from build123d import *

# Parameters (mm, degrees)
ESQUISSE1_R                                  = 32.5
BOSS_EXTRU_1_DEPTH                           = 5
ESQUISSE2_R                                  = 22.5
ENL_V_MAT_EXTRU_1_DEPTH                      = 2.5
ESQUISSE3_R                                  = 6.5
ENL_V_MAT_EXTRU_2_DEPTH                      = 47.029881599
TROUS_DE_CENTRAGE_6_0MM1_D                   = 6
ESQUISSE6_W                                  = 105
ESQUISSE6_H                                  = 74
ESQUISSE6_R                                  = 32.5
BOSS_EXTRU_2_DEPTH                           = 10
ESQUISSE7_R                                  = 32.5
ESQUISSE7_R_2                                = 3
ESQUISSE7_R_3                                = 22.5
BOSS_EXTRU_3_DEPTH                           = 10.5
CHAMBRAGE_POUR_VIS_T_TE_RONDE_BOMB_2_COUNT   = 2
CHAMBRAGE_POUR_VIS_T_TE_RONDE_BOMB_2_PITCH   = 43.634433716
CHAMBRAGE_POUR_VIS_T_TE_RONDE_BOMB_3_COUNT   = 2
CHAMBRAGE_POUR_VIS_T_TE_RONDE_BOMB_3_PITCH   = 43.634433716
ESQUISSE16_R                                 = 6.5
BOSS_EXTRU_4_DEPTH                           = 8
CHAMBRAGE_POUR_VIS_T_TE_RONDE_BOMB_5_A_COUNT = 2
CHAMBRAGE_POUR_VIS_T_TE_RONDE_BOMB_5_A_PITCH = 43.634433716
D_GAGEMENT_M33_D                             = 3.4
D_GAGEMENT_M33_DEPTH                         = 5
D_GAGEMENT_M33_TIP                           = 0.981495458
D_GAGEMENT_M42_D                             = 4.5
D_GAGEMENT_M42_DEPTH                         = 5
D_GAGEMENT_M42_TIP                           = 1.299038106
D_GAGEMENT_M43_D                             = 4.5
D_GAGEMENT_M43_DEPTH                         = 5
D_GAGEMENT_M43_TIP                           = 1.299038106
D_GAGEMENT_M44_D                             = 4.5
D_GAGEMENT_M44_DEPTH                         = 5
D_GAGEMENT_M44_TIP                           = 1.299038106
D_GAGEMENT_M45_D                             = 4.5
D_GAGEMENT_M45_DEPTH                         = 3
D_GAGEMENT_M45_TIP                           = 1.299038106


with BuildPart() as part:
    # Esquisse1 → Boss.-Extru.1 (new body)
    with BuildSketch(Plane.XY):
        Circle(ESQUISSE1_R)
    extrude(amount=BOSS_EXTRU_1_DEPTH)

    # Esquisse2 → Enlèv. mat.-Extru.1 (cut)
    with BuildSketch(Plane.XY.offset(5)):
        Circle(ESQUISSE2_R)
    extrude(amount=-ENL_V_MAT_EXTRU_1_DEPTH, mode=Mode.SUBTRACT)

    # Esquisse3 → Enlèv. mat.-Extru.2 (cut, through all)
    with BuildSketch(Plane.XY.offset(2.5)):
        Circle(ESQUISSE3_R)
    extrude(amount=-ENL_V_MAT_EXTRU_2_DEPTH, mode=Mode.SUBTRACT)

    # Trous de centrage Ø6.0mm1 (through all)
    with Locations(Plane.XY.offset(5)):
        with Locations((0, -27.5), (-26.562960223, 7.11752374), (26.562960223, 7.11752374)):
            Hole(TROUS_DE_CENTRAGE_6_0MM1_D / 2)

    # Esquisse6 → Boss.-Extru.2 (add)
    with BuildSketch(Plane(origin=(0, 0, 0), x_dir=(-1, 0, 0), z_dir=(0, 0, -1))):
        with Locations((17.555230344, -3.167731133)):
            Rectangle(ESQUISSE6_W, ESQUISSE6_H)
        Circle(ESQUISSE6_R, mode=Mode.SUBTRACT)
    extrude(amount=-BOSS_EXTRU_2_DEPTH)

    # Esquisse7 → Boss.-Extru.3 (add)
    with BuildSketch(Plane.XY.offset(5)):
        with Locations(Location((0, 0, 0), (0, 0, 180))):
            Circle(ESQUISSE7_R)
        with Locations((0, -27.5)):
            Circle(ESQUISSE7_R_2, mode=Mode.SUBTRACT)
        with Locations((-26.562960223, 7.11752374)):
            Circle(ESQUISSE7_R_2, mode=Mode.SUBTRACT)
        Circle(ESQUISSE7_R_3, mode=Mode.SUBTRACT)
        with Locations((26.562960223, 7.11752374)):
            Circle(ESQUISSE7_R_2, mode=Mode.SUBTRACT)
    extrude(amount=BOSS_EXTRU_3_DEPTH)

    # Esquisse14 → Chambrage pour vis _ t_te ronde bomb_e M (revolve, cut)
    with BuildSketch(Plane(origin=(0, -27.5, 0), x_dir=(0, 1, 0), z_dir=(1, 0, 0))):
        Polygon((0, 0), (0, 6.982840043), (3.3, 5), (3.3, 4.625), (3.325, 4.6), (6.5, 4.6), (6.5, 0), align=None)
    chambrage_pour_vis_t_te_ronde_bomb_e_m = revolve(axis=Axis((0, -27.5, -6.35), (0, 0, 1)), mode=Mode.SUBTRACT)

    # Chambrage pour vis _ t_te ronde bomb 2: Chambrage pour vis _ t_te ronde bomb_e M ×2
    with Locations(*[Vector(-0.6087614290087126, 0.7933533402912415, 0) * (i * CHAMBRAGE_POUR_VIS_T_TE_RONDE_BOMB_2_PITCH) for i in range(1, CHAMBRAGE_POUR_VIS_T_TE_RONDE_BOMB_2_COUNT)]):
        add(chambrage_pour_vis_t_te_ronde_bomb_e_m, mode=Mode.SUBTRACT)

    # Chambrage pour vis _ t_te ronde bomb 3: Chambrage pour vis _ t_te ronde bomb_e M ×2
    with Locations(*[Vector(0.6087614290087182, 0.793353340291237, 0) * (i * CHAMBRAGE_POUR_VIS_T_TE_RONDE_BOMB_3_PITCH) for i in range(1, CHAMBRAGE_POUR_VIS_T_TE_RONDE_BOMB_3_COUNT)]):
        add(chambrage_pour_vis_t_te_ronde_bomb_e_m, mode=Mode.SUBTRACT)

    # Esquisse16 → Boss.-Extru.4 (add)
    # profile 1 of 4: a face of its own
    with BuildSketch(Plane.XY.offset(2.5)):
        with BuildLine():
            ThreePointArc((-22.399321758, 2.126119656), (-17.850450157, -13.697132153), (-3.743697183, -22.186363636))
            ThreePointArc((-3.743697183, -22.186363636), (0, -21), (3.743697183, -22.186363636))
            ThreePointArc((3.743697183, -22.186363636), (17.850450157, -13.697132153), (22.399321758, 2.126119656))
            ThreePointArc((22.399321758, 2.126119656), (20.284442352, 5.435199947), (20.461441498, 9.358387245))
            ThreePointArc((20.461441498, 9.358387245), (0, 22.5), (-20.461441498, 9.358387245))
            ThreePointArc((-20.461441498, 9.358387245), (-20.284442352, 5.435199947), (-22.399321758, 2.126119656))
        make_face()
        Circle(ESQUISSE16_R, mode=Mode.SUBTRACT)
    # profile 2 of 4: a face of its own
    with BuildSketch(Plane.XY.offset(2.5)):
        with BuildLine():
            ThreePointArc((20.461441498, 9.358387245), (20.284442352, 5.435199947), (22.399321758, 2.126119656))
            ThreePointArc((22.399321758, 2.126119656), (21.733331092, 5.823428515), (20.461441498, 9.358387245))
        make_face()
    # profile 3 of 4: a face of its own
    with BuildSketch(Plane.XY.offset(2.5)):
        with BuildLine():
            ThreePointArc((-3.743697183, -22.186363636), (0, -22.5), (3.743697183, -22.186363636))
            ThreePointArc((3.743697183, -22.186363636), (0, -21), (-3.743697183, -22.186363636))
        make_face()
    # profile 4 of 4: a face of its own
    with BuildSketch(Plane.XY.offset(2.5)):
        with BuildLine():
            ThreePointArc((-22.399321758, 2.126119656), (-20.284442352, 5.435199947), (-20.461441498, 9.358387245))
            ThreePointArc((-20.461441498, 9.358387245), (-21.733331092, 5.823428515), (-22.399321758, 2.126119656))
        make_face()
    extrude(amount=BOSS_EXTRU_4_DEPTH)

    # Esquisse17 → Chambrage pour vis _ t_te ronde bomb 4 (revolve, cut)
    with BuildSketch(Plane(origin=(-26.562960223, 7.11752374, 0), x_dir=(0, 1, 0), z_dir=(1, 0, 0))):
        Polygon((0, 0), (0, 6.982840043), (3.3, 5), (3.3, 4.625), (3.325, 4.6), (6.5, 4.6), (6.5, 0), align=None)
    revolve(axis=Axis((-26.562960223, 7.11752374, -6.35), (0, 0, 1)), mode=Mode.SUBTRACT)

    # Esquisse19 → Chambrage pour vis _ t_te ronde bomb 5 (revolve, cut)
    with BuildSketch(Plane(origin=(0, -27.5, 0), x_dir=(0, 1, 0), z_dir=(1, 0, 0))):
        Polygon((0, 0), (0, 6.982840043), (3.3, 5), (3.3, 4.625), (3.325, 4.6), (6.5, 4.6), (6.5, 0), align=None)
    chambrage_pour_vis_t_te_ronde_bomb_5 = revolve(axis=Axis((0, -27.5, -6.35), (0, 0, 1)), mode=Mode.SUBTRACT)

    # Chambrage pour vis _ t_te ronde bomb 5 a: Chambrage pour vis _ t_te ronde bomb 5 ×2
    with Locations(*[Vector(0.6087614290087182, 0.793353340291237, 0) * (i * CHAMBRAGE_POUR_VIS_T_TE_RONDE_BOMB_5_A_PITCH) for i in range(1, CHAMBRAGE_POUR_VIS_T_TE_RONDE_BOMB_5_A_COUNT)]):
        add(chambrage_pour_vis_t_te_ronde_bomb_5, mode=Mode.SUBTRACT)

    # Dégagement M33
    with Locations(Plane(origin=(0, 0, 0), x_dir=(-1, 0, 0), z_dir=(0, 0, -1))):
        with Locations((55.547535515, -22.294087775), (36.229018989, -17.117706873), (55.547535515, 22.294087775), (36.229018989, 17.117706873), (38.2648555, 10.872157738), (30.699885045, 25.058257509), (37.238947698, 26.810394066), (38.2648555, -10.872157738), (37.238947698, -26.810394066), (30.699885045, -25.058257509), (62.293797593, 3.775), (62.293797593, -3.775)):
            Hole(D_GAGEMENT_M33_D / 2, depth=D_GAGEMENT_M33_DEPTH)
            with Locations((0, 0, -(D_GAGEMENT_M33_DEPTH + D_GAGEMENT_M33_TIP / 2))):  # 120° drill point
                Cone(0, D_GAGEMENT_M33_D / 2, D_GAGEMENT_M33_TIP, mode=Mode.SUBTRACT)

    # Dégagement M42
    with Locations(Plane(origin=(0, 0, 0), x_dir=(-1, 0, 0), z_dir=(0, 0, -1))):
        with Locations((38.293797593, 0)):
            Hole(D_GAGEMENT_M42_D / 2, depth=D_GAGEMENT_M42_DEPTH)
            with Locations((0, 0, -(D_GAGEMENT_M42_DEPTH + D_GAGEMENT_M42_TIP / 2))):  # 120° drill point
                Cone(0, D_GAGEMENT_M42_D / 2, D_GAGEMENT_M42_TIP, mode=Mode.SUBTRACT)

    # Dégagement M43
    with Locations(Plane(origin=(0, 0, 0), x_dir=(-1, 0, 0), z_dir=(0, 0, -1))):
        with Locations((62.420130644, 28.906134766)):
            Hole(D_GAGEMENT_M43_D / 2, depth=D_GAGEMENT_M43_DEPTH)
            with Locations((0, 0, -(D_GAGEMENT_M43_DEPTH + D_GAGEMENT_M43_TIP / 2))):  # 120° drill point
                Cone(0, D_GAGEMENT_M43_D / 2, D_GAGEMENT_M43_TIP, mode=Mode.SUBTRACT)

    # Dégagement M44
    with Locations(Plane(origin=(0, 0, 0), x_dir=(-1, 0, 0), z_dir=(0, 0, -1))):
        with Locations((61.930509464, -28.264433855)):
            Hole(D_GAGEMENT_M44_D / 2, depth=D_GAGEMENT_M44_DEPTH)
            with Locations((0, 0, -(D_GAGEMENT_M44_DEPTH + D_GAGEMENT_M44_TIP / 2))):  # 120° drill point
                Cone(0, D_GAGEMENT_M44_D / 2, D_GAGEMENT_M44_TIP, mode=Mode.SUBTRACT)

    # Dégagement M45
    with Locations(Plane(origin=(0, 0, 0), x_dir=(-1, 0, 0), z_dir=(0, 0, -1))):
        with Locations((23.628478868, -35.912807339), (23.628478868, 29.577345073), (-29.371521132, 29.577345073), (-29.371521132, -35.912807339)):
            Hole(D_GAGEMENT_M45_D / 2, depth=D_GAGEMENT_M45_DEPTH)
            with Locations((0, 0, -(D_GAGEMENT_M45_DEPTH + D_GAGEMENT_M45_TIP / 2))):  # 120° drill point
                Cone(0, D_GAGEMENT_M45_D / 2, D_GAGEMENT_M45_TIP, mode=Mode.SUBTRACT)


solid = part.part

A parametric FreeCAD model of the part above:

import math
import FreeCAD as App
import Part
import Sketcher
Q = App.Units.Quantity


def add_polygon(sketch, points):
    """Adds a closed chain of lines whose ends are joined by coincident constraints."""
    first, n = sketch.GeometryCount, len(points)
    for a, b in zip(points, points[1:] + points[:1]):
        sketch.addGeometry(Part.LineSegment(App.Vector(*a, 0), App.Vector(*b, 0)), False)
    for i in range(n):
        sketch.addConstraint(Sketcher.Constraint("Coincident", first + i, 2, first + (i + 1) % n, 1))

doc = App.newDocument("Part")
body = doc.addObject("PartDesign::Body", "Body")

sketch1 = body.newObject("Sketcher::SketchObject", "Sketch")
sketch1.AttachmentSupport = (doc.getObject("XY_Plane"), [""])
sketch1.MapMode = "FlatFace"
sketch1.addGeometry(Part.Circle(App.Vector(0, 0, 0), App.Vector(0, 0, 1), 32), False)
sketch1.addConstraint([
    Sketcher.Constraint("Coincident", 0, 3, -1, 1),
    Sketcher.Constraint("Diameter", 0, 65.0),
])
pad1 = body.newObject("PartDesign::Pad", "Pad")
pad1.Profile = sketch1
pad1.Length = 5

sketch2 = body.newObject("Sketcher::SketchObject", "Sketch001")
sketch2.AttachmentSupport = (doc.getObject("XY_Plane"), [""])
sketch2.MapMode = "FlatFace"
sketch2.AttachmentOffset = App.Placement(App.Vector(0, 0, 5), App.Rotation())
sketch2.addGeometry(Part.Circle(App.Vector(0, 0, 0), App.Vector(0, 0, 1), 22), False)
sketch2.addConstraint([
    Sketcher.Constraint("Coincident", 0, 3, -1, 1),
    Sketcher.Constraint("Diameter", 0, 45.0),
])
pocket1 = body.newObject("PartDesign::Pocket", "Pocket")
pocket1.Profile = sketch2
pocket1.Length = 2.5

sketch3 = body.newObject("Sketcher::SketchObject", "Sketch002")
sketch3.AttachmentSupport = (doc.getObject("XY_Plane"), [""])
sketch3.MapMode = "FlatFace"
sketch3.AttachmentOffset = App.Placement(App.Vector(0, 0, 2.5), App.Rotation())
sketch3.addGeometry(Part.Circle(App.Vector(0, 0, 0), App.Vector(0, 0, 1), 6), False)
sketch3.addConstraint([
    Sketcher.Constraint("Coincident", 0, 3, -1, 1),
    Sketcher.Constraint("Diameter", 0, 13.0),
])
pocket2 = body.newObject("PartDesign::Pocket", "Pocket001")
pocket2.Profile = sketch3
pocket2.Type = "ThroughAll"

sketch4 = body.newObject("Sketcher::SketchObject", "Sketch003")
sketch4.AttachmentSupport = (doc.getObject("XY_Plane"), [""])
sketch4.MapMode = "FlatFace"
sketch4.AttachmentOffset = App.Placement(App.Vector(0, 0, 5), App.Rotation())
sketch4.addGeometry([
    Part.Circle(App.Vector(0, -27.5, 0), App.Vector(0, 0, 1), 3),
    Part.Circle(App.Vector(-26.6, 7.1, 0), App.Vector(0, 0, 1), 3),
    Part.Circle(App.Vector(26.6, 7.1, 0), App.Vector(0, 0, 1), 3),
], False)
sketch4.addConstraint([
    Sketcher.Constraint("Equal", 0, 1),
    Sketcher.Constraint("Equal", 1, 2),
    Sketcher.Constraint("Symmetric", 1, 3, 2, 3, -2),
    Sketcher.Constraint("PointOnObject", 0, 3, -2),
    Sketcher.Constraint("Diameter", 0, 6.0),
    Sketcher.Constraint("DistanceY", 0, 3, -1, 1, 27.5),
    Sketcher.Constraint("DistanceX", 1, 3, -1, 1, 26.56296),
    Sketcher.Constraint("DistanceY", -1, 1, 1, 3, 7.117524),
])
doc.recompute()
hole = body.newObject("PartDesign::Hole", "Hole")
hole.Profile = sketch4
hole.ThreadType = "None"
hole.Diameter = 6
hole.DepthType = "ThroughAll"

sketch5 = body.newObject("Sketcher::SketchObject", "Sketch004")
sketch5.AttachmentSupport = (doc.getObject("XY_Plane"), [""])
sketch5.MapMode = "FlatFace"
add_polygon(sketch5, [(35, 34), (35, -40), (-70, -40), (-70, 34)])
sketch5.addGeometry(Part.Circle(App.Vector(0, 0, 0), App.Vector(0, 0, 1), 32), False)
sketch5.addConstraint([
    Sketcher.Constraint("Vertical", 0),
    Sketcher.Constraint("Horizontal", 1),
    Sketcher.Constraint("Vertical", 2),
    Sketcher.Constraint("Horizontal", 3),
    Sketcher.Constraint("Coincident", 4, 3, -1, 1),
    Sketcher.Constraint("Diameter", 4, 65.0),
    Sketcher.Constraint("DistanceX", 1, 2, 1, 1, 105.0),
    Sketcher.Constraint("DistanceY", 0, 2, 0, 1, 74.0),
    Sketcher.Constraint("DistanceX", -1, 1, 0, 2, 34.94477),
    Sketcher.Constraint("DistanceY", 0, 2, -1, 1, 40.167731),
])
pad2 = body.newObject("PartDesign::Pad", "Pad001")
pad2.Profile = sketch5
pad2.Length = 10

sketch6 = body.newObject("Sketcher::SketchObject", "Sketch005")
sketch6.AttachmentSupport = (doc.getObject("XY_Plane"), [""])
sketch6.MapMode = "FlatFace"
sketch6.AttachmentOffset = App.Placement(App.Vector(0, 0, 5), App.Rotation())
sketch6.addGeometry([
    Part.Circle(App.Vector(0, 0, 0), App.Vector(0, 0, 1), 32.5),
    Part.Circle(App.Vector(26.6, 7.1, 0), App.Vector(0, 0, 1), 3),
    Part.Circle(App.Vector(0, 0, 0), App.Vector(0, 0, 1), 22.5),
    Part.Circle(App.Vector(-26.6, 7.1, 0), App.Vector(0, 0, 1), 3),
    Part.Circle(App.Vector(0, -27.5, 0), App.Vector(0, 0, 1), 3),
], False)
sketch6.addConstraint([
    Sketcher.Constraint("Coincident", 0, 3, -1, 1),
    Sketcher.Constraint("Coincident", 2, 3, -1, 1),
    Sketcher.Constraint("Equal", 1, 3),
    Sketcher.Constraint("Equal", 3, 4),
    Sketcher.Constraint("Symmetric", 1, 3, 3, 3, -2),
    Sketcher.Constraint("PointOnObject", 4, 3, -2),
    Sketcher.Constraint("Diameter", 0, 65.0),
    Sketcher.Constraint("Diameter", 1, 6.0),
    Sketcher.Constraint("Diameter", 2, 45.0),
    Sketcher.Constraint("DistanceY", 4, 3, -1, 1, 27.5),
    Sketcher.Constraint("DistanceX", -1, 1, 1, 3, 26.56296),
    Sketcher.Constraint("DistanceY", -1, 1, 1, 3, 7.117524),
])
pad3 = body.newObject("PartDesign::Pad", "Pad002")
pad3.Profile = sketch6
pad3.Length = 10.5

sketch7 = body.newObject("Sketcher::SketchObject", "Sketch006")
sketch7.AttachmentSupport = (doc.getObject("YZ_Plane"), [""])
sketch7.MapMode = "FlatFace"
add_polygon(sketch7, [(-27.5, 6.983), (-27.5, 0), (-21, 0), (-21, 4.6), (-24.175, 4.6), (-24.2, 4.625), (-24.2, 5)])
sketch7.addGeometry(Part.LineSegment(App.Vector(-27.5, 0, 0), App.Vector(-27.5, 6.983, 0)), True)
sketch7.addConstraint([
    Sketcher.Constraint("Vertical", 0),
    Sketcher.Constraint("Horizontal", 1),
    Sketcher.Constraint("Vertical", 2),
    Sketcher.Constraint("Horizontal", 3),
    Sketcher.Constraint("Vertical", 5),
    Sketcher.Constraint("Vertical", 7),
    Sketcher.Constraint("Coincident", 7, 1, 0, 2),
    Sketcher.Constraint("PointOnObject", 0, 2, -1),
    Sketcher.Constraint("Equal", 0, 7),
    Sketcher.Constraint("Angle", 4, Q("135 deg")),
    Sketcher.Constraint("Angle", 6, Q("149 deg")),
    Sketcher.Constraint("DistanceX", 1, 1, 1, 2, 6.5),
    Sketcher.Constraint("DistanceY", 2, 1, 2, 2, 4.6),
    Sketcher.Constraint("DistanceX", 1, 2, -1, 1, 21.0),
    Sketcher.Constraint("DistanceY", -1, 1, 5, 2, 5.0),
    Sketcher.Constraint("DistanceX", 4, 2, -1, 1, 24.2),
    Sketcher.Constraint("DistanceX", 3, 2, 3, 1, 3.175),
])
groove = body.newObject("PartDesign::Groove", "Groove")
groove.Profile = sketch7
groove.ReferenceAxis = (sketch7, ["Axis0"])
groove.Angle = 360
doc.recompute()

datumline = body.newObject("PartDesign::Line", "DatumLine")
datumline.Placement = App.Placement(App.Vector(0, 0, 0), App.Rotation(App.Vector(0, 0, 1), App.Vector(-0.608761429, 0.79335334, 0)))
linearpattern = body.newObject("PartDesign::LinearPattern", "LinearPattern")
linearpattern.Originals = [groove]
linearpattern.Direction = (datumline, [""])
linearpattern.Mode = "offset"
linearpattern.Offset = 43.634434
linearpattern.Occurrences = 2
body.Tip = linearpattern
doc.recompute()

datumline2 = body.newObject("PartDesign::Line", "DatumLine001")
datumline2.Placement = App.Placement(App.Vector(0, 0, 0), App.Rotation(App.Vector(0, 0, 1), App.Vector(0.608761429, 0.79335334, 0)))
linearpattern2 = body.newObject("PartDesign::LinearPattern", "LinearPattern001")
linearpattern2.Originals = [groove]
linearpattern2.Direction = (datumline2, [""])
linearpattern2.Mode = "offset"
linearpattern2.Offset = 43.634434
linearpattern2.Occurrences = 2
body.Tip = linearpattern2

sketch8 = body.newObject("Sketcher::SketchObject", "Sketch007")
sketch8.AttachmentSupport = (doc.getObject("XY_Plane"), [""])
sketch8.MapMode = "FlatFace"
sketch8.AttachmentOffset = App.Placement(App.Vector(0, 0, 2.5), App.Rotation())
sketch8.addGeometry([
    Part.ArcOfCircle(Part.Circle(App.Vector(0, 0, 0), App.Vector(0, 0, 1), 22), math.radians(175), math.radians(260)),
    Part.ArcOfCircle(Part.Circle(App.Vector(0, 0, 0), App.Vector(0, 0, 1), 22), math.radians(-99.58), math.radians(-80.42)),
    Part.ArcOfCircle(Part.Circle(App.Vector(0, 0, 0), App.Vector(0, 0, 1), 22), math.radians(-80), math.radians(5)),
    Part.ArcOfCircle(Part.Circle(App.Vector(0, 0, 0), App.Vector(0, 0, 1), 22), math.radians(5.42), math.radians(24.58)),
    Part.ArcOfCircle(Part.Circle(App.Vector(0, 0, 0), App.Vector(0, 0, 1), 22), math.radians(25), math.radians(155)),
    Part.ArcOfCircle(Part.Circle(App.Vector(0, 0, 0), App.Vector(0, 0, 1), 22), math.radians(155.42), math.radians(174.58)),
    Part.Circle(App.Vector(0, 0, 0), App.Vector(0, 0, 1), 6),
], False)
sketch8.addConstraint([
    Sketcher.Constraint("Tangent", 0, 2, 1, 1),
    Sketcher.Constraint("Tangent", 1, 2, 2, 1),
    Sketcher.Constraint("Tangent", 2, 2, 3, 1),
    Sketcher.Constraint("Tangent", 3, 2, 4, 1),
    Sketcher.Constraint("Tangent", 4, 2, 5, 1),
    Sketcher.Constraint("Tangent", 5, 2, 0, 1),
    Sketcher.Constraint("Coincident", 0, 3, -1, 1),
    Sketcher.Constraint("Coincident", 2, 3, -1, 1),
    Sketcher.Constraint("Coincident", 6, 3, -1, 1),
    Sketcher.Constraint("Equal", 2, 3),
    Sketcher.Constraint("Horizontal", 0, 2, 1, 2),
    Sketcher.Constraint("Horizontal", 3, 2, 4, 2),
    Sketcher.Constraint("Horizontal", 2, 2, 5, 2),
    Sketcher.Constraint("Diameter", 6, 13.0),
    Sketcher.Constraint("Radius", 0, 22.5),
    Sketcher.Constraint("DistanceX", -1, 1, 2, 2, 22.399322),
    Sketcher.Constraint("DistanceX", -1, 1, 3, 2, 20.461441),
    Sketcher.Constraint("DistanceX", 0, 2, -1, 1, 3.743697),
])
pad4 = body.newObject("PartDesign::Pad", "Pad003")
pad4.Profile = sketch8
pad4.Length = 8

sketch9 = body.newObject("Sketcher::SketchObject", "Sketch008")
sketch9.AttachmentSupport = (doc.getObject("YZ_Plane"), [""])
sketch9.MapMode = "FlatFace"
sketch9.AttachmentOffset = App.Placement(App.Vector(0, 0, -26.56296), App.Rotation())
add_polygon(sketch9, [(7.118, 6.983), (7.118, 0), (13.618, 0), (13.618, 4.6), (10.443, 4.6), (10.418, 4.625), (10.418, 5)])
sketch9.addGeometry(Part.LineSegment(App.Vector(7.118, 0, 0), App.Vector(7.118, 6.983, 0)), True)
sketch9.addConstraint([
    Sketcher.Constraint("Vertical", 0),
    Sketcher.Constraint("Horizontal", 1),
    Sketcher.Constraint("Vertical", 2),
    Sketcher.Constraint("Horizontal", 3),
    Sketcher.Constraint("Vertical", 5),
    Sketcher.Constraint("Vertical", 7),
    Sketcher.Constraint("Coincident", 7, 1, 0, 2),
    Sketcher.Constraint("PointOnObject", 0, 2, -1),
    Sketcher.Constraint("Equal", 0, 7),
    Sketcher.Constraint("Angle", 4, Q("135 deg")),
    Sketcher.Constraint("Angle", 6, Q("149 deg")),
    Sketcher.Constraint("DistanceX", 1, 1, 1, 2, 6.5),
    Sketcher.Constraint("DistanceY", 2, 1, 2, 2, 4.6),
    Sketcher.Constraint("DistanceY", -1, 1, 5, 2, 5.0),
    Sketcher.Constraint("DistanceX", 4, 2, 2, 2, 3.2),
    Sketcher.Constraint("DistanceX", 3, 2, 3, 1, 3.175),
    Sketcher.Constraint("DistanceX", -1, 1, 0, 2, 7.117524),
])
groove2 = body.newObject("PartDesign::Groove", "Groove001")
groove2.Profile = sketch9
groove2.ReferenceAxis = (sketch9, ["Axis0"])
groove2.Angle = 360

sketch10 = body.newObject("Sketcher::SketchObject", "Sketch009")
sketch10.AttachmentSupport = (doc.getObject("YZ_Plane"), [""])
sketch10.MapMode = "FlatFace"
add_polygon(sketch10, [(-27.5, 6.983), (-27.5, 0), (-21, 0), (-21, 4.6), (-24.175, 4.6), (-24.2, 4.625), (-24.2, 5)])
sketch10.addGeometry(Part.LineSegment(App.Vector(-27.5, 0, 0), App.Vector(-27.5, 6.983, 0)), True)
sketch10.addConstraint([
    Sketcher.Constraint("Vertical", 0),
    Sketcher.Constraint("Horizontal", 1),
    Sketcher.Constraint("Vertical", 2),
    Sketcher.Constraint("Horizontal", 3),
    Sketcher.Constraint("Vertical", 5),
    Sketcher.Constraint("Vertical", 7),
    Sketcher.Constraint("Coincident", 7, 1, 0, 2),
    Sketcher.Constraint("PointOnObject", 0, 2, -1),
    Sketcher.Constraint("Equal", 0, 7),
    Sketcher.Constraint("Angle", 4, Q("135 deg")),
    Sketcher.Constraint("Angle", 6, Q("149 deg")),
    Sketcher.Constraint("DistanceX", 1, 1, 1, 2, 6.5),
    Sketcher.Constraint("DistanceY", 2, 1, 2, 2, 4.6),
    Sketcher.Constraint("DistanceX", 1, 2, -1, 1, 21.0),
    Sketcher.Constraint("DistanceY", -1, 1, 5, 2, 5.0),
    Sketcher.Constraint("DistanceX", 4, 2, -1, 1, 24.2),
    Sketcher.Constraint("DistanceX", 3, 2, 3, 1, 3.175),
])
groove3 = body.newObject("PartDesign::Groove", "Groove002")
groove3.Profile = sketch10
groove3.ReferenceAxis = (sketch10, ["Axis0"])
groove3.Angle = 360
doc.recompute()

datumline3 = body.newObject("PartDesign::Line", "DatumLine002")
datumline3.Placement = App.Placement(App.Vector(0, 0, 0), App.Rotation(App.Vector(0, 0, 1), App.Vector(0.608761429, 0.79335334, 0)))
linearpattern3 = body.newObject("PartDesign::LinearPattern", "LinearPattern002")
linearpattern3.Originals = [groove3]
linearpattern3.Direction = (datumline3, [""])
linearpattern3.Mode = "offset"
linearpattern3.Offset = 43.634434
linearpattern3.Occurrences = 2
body.Tip = linearpattern3

sketch11 = body.newObject("Sketcher::SketchObject", "Sketch010")
sketch11.AttachmentSupport = (doc.getObject("XY_Plane"), [""])
sketch11.MapMode = "FlatFace"
sketch11.addGeometry([
    Part.Circle(App.Vector(-55.5, -22.3, 0), App.Vector(0, 0, 1), 1.7),
    Part.Circle(App.Vector(-36.2, -17.1, 0), App.Vector(0, 0, 1), 1.7),
    Part.Circle(App.Vector(-55.5, 22.3, 0), App.Vector(0, 0, 1), 1.7),
    Part.Circle(App.Vector(-36.2, 17.1, 0), App.Vector(0, 0, 1), 1.7),
    Part.Circle(App.Vector(-38.3, 10.9, 0), App.Vector(0, 0, 1), 1.7),
    Part.Circle(App.Vector(-30.7, 25.1, 0), App.Vector(0, 0, 1), 1.7),
    Part.Circle(App.Vector(-37.2, 26.8, 0), App.Vector(0, 0, 1), 1.7),
    Part.Circle(App.Vector(-38.3, -10.9, 0), App.Vector(0, 0, 1), 1.7),
    Part.Circle(App.Vector(-37.2, -26.8, 0), App.Vector(0, 0, 1), 1.7),
    Part.Circle(App.Vector(-30.7, -25.1, 0), App.Vector(0, 0, 1), 1.7),
    Part.Circle(App.Vector(-62.3, 3.8, 0), App.Vector(0, 0, 1), 1.7),
    Part.Circle(App.Vector(-62.3, -3.8, 0), App.Vector(0, 0, 1), 1.7),
], False)
sketch11.addConstraint([
    Sketcher.Constraint("Equal", 0, 1),
    Sketcher.Constraint("Equal", 1, 2),
    Sketcher.Constraint("Equal", 2, 3),
    Sketcher.Constraint("Equal", 3, 4),
    Sketcher.Constraint("Equal", 4, 5),
    Sketcher.Constraint("Equal", 5, 6),
    Sketcher.Constraint("Equal", 6, 7),
    Sketcher.Constraint("Equal", 7, 8),
    Sketcher.Constraint("Equal", 8, 9),
    Sketcher.Constraint("Equal", 9, 10),
    Sketcher.Constraint("Equal", 10, 11),
    Sketcher.Constraint("Symmetric", 0, 3, 2, 3, -1),
    Sketcher.Constraint("Symmetric", 1, 3, 3, 3, -1),
    Sketcher.Constraint("Symmetric", 4, 3, 7, 3, -1),
    Sketcher.Constraint("Symmetric", 6, 3, 8, 3, -1),
    Sketcher.Constraint("Symmetric", 5, 3, 9, 3, -1),
    Sketcher.Constraint("Symmetric", 10, 3, 11, 3, -1),
    Sketcher.Constraint("Diameter", 0, 3.4),
    Sketcher.Constraint("DistanceY", 11, 3, 10, 3, 7.55),
    Sketcher.Constraint("DistanceY", 4, 3, 5, 3, 14.1861),
    Sketcher.Constraint("DistanceY", 1, 3, 6, 3, 43.928101),
    Sketcher.Constraint("DistanceX", 1, 3, -1, 1, 36.229019),
    Sketcher.Constraint("DistanceY", 0, 3, 1, 3, 5.176381),
    Sketcher.Constraint("DistanceY", 4, 3, 3, 3, 6.245549),
    Sketcher.Constraint("DistanceX", 2, 3, 4, 3, 17.28268),
    Sketcher.Constraint("DistanceX", 4, 3, 5, 3, 7.56497),
    Sketcher.Constraint("DistanceX", 6, 3, 3, 3, 1.009929),
    Sketcher.Constraint("DistanceX", 10, 3, 3, 3, 26.064779),
    Sketcher.Constraint("DistanceX", 0, 3, -1, 1, 55.547536),
    Sketcher.Constraint("DistanceY", 0, 3, -1, 1, 22.294088),
])
doc.recompute()
hole2 = body.newObject("PartDesign::Hole", "Hole001")
hole2.Profile = sketch11
hole2.ThreadType = "None"
hole2.Diameter = 3.4
hole2.DepthType = "Dimension"
hole2.Depth = 5
hole2.DrillPoint = "Angled"
hole2.DrillPointAngle = 120
hole2.Reversed = True

sketch12 = body.newObject("Sketcher::SketchObject", "Sketch011")
sketch12.AttachmentSupport = (doc.getObject("XY_Plane"), [""])
sketch12.MapMode = "FlatFace"
sketch12.addGeometry(Part.Circle(App.Vector(-38.3, 0, 0), App.Vector(0, 0, 1), 2.2), False)
sketch12.addConstraint([
    Sketcher.Constraint("PointOnObject", 0, 3, -1),
    Sketcher.Constraint("Diameter", 0, 4.5),
    Sketcher.Constraint("DistanceX", 0, 3, -1, 1, 38.293798),
])
doc.recompute()
hole3 = body.newObject("PartDesign::Hole", "Hole002")
hole3.Profile = sketch12
hole3.ThreadType = "None"
hole3.Diameter = 4.5
hole3.DepthType = "Dimension"
hole3.Depth = 5
hole3.DrillPoint = "Angled"
hole3.DrillPointAngle = 120
hole3.Reversed = True

sketch13 = body.newObject("Sketcher::SketchObject", "Sketch012")
sketch13.AttachmentSupport = (doc.getObject("XY_Plane"), [""])
sketch13.MapMode = "FlatFace"
sketch13.addGeometry(Part.Circle(App.Vector(-62.4, 28.9, 0), App.Vector(0, 0, 1), 2.2), False)
sketch13.addConstraint([
    Sketcher.Constraint("Diameter", 0, 4.5),
    Sketcher.Constraint("DistanceX", 0, 3, -1, 1, 62.420131),
    Sketcher.Constraint("DistanceY", -1, 1, 0, 3, 28.906135),
])
doc.recompute()
hole4 = body.newObject("PartDesign::Hole", "Hole003")
hole4.Profile = sketch13
hole4.ThreadType = "None"
hole4.Diameter = 4.5
hole4.DepthType = "Dimension"
hole4.Depth = 5
hole4.DrillPoint = "Angled"
hole4.DrillPointAngle = 120
hole4.Reversed = True

sketch14 = body.newObject("Sketcher::SketchObject", "Sketch013")
sketch14.AttachmentSupport = (doc.getObject("XY_Plane"), [""])
sketch14.MapMode = "FlatFace"
sketch14.addGeometry(Part.Circle(App.Vector(-61.9, -28.3, 0), App.Vector(0, 0, 1), 2.2), False)
sketch14.addConstraint([
    Sketcher.Constraint("Diameter", 0, 4.5),
    Sketcher.Constraint("DistanceX", 0, 3, -1, 1, 61.930509),
    Sketcher.Constraint("DistanceY", 0, 3, -1, 1, 28.264434),
])
doc.recompute()
hole5 = body.newObject("PartDesign::Hole", "Hole004")
hole5.Profile = sketch14
hole5.ThreadType = "None"
hole5.Diameter = 4.5
hole5.DepthType = "Dimension"
hole5.Depth = 5
hole5.DrillPoint = "Angled"
hole5.DrillPointAngle = 120
hole5.Reversed = True

sketch15 = body.newObject("Sketcher::SketchObject", "Sketch014")
sketch15.AttachmentSupport = (doc.getObject("XY_Plane"), [""])
sketch15.MapMode = "FlatFace"
sketch15.addGeometry([
    Part.Circle(App.Vector(-23.6, -35.9, 0), App.Vector(0, 0, 1), 2.2),
    Part.Circle(App.Vector(-23.6, 29.6, 0), App.Vector(0, 0, 1), 2.2),
    Part.Circle(App.Vector(29.4, 29.6, 0), App.Vector(0, 0, 1), 2.2),
    Part.Circle(App.Vector(29.4, -35.9, 0), App.Vector(0, 0, 1), 2.2),
], False)
sketch15.addConstraint([
    Sketcher.Constraint("Equal", 0, 1),
    Sketcher.Constraint("Equal", 1, 2),
    Sketcher.Constraint("Equal", 2, 3),
    Sketcher.Constraint("Horizontal", 1, 3, 2, 3),
    Sketcher.Constraint("Horizontal", 0, 3, 3, 3),
    Sketcher.Constraint("Vertical", 0, 3, 1, 3),
    Sketcher.Constraint("Vertical", 2, 3, 3, 3),
    Sketcher.Constraint("Diameter", 0, 4.5),
    Sketcher.Constraint("DistanceX", 1, 3, 2, 3, 53.0),
    Sketcher.Constraint("DistanceX", 0, 3, -1, 1, 23.628479),
    Sketcher.Constraint("DistanceY", 0, 3, -1, 1, 35.912807),
    Sketcher.Constraint("DistanceY", -1, 1, 1, 3, 29.577345),
])
doc.recompute()
hole6 = body.newObject("PartDesign::Hole", "Hole005")
hole6.Profile = sketch15
hole6.ThreadType = "None"
hole6.Diameter = 4.5
hole6.DepthType = "Dimension"
hole6.Depth = 3
hole6.DrillPoint = "Angled"
hole6.DrillPointAngle = 120
hole6.Reversed = True

doc.recompute()
